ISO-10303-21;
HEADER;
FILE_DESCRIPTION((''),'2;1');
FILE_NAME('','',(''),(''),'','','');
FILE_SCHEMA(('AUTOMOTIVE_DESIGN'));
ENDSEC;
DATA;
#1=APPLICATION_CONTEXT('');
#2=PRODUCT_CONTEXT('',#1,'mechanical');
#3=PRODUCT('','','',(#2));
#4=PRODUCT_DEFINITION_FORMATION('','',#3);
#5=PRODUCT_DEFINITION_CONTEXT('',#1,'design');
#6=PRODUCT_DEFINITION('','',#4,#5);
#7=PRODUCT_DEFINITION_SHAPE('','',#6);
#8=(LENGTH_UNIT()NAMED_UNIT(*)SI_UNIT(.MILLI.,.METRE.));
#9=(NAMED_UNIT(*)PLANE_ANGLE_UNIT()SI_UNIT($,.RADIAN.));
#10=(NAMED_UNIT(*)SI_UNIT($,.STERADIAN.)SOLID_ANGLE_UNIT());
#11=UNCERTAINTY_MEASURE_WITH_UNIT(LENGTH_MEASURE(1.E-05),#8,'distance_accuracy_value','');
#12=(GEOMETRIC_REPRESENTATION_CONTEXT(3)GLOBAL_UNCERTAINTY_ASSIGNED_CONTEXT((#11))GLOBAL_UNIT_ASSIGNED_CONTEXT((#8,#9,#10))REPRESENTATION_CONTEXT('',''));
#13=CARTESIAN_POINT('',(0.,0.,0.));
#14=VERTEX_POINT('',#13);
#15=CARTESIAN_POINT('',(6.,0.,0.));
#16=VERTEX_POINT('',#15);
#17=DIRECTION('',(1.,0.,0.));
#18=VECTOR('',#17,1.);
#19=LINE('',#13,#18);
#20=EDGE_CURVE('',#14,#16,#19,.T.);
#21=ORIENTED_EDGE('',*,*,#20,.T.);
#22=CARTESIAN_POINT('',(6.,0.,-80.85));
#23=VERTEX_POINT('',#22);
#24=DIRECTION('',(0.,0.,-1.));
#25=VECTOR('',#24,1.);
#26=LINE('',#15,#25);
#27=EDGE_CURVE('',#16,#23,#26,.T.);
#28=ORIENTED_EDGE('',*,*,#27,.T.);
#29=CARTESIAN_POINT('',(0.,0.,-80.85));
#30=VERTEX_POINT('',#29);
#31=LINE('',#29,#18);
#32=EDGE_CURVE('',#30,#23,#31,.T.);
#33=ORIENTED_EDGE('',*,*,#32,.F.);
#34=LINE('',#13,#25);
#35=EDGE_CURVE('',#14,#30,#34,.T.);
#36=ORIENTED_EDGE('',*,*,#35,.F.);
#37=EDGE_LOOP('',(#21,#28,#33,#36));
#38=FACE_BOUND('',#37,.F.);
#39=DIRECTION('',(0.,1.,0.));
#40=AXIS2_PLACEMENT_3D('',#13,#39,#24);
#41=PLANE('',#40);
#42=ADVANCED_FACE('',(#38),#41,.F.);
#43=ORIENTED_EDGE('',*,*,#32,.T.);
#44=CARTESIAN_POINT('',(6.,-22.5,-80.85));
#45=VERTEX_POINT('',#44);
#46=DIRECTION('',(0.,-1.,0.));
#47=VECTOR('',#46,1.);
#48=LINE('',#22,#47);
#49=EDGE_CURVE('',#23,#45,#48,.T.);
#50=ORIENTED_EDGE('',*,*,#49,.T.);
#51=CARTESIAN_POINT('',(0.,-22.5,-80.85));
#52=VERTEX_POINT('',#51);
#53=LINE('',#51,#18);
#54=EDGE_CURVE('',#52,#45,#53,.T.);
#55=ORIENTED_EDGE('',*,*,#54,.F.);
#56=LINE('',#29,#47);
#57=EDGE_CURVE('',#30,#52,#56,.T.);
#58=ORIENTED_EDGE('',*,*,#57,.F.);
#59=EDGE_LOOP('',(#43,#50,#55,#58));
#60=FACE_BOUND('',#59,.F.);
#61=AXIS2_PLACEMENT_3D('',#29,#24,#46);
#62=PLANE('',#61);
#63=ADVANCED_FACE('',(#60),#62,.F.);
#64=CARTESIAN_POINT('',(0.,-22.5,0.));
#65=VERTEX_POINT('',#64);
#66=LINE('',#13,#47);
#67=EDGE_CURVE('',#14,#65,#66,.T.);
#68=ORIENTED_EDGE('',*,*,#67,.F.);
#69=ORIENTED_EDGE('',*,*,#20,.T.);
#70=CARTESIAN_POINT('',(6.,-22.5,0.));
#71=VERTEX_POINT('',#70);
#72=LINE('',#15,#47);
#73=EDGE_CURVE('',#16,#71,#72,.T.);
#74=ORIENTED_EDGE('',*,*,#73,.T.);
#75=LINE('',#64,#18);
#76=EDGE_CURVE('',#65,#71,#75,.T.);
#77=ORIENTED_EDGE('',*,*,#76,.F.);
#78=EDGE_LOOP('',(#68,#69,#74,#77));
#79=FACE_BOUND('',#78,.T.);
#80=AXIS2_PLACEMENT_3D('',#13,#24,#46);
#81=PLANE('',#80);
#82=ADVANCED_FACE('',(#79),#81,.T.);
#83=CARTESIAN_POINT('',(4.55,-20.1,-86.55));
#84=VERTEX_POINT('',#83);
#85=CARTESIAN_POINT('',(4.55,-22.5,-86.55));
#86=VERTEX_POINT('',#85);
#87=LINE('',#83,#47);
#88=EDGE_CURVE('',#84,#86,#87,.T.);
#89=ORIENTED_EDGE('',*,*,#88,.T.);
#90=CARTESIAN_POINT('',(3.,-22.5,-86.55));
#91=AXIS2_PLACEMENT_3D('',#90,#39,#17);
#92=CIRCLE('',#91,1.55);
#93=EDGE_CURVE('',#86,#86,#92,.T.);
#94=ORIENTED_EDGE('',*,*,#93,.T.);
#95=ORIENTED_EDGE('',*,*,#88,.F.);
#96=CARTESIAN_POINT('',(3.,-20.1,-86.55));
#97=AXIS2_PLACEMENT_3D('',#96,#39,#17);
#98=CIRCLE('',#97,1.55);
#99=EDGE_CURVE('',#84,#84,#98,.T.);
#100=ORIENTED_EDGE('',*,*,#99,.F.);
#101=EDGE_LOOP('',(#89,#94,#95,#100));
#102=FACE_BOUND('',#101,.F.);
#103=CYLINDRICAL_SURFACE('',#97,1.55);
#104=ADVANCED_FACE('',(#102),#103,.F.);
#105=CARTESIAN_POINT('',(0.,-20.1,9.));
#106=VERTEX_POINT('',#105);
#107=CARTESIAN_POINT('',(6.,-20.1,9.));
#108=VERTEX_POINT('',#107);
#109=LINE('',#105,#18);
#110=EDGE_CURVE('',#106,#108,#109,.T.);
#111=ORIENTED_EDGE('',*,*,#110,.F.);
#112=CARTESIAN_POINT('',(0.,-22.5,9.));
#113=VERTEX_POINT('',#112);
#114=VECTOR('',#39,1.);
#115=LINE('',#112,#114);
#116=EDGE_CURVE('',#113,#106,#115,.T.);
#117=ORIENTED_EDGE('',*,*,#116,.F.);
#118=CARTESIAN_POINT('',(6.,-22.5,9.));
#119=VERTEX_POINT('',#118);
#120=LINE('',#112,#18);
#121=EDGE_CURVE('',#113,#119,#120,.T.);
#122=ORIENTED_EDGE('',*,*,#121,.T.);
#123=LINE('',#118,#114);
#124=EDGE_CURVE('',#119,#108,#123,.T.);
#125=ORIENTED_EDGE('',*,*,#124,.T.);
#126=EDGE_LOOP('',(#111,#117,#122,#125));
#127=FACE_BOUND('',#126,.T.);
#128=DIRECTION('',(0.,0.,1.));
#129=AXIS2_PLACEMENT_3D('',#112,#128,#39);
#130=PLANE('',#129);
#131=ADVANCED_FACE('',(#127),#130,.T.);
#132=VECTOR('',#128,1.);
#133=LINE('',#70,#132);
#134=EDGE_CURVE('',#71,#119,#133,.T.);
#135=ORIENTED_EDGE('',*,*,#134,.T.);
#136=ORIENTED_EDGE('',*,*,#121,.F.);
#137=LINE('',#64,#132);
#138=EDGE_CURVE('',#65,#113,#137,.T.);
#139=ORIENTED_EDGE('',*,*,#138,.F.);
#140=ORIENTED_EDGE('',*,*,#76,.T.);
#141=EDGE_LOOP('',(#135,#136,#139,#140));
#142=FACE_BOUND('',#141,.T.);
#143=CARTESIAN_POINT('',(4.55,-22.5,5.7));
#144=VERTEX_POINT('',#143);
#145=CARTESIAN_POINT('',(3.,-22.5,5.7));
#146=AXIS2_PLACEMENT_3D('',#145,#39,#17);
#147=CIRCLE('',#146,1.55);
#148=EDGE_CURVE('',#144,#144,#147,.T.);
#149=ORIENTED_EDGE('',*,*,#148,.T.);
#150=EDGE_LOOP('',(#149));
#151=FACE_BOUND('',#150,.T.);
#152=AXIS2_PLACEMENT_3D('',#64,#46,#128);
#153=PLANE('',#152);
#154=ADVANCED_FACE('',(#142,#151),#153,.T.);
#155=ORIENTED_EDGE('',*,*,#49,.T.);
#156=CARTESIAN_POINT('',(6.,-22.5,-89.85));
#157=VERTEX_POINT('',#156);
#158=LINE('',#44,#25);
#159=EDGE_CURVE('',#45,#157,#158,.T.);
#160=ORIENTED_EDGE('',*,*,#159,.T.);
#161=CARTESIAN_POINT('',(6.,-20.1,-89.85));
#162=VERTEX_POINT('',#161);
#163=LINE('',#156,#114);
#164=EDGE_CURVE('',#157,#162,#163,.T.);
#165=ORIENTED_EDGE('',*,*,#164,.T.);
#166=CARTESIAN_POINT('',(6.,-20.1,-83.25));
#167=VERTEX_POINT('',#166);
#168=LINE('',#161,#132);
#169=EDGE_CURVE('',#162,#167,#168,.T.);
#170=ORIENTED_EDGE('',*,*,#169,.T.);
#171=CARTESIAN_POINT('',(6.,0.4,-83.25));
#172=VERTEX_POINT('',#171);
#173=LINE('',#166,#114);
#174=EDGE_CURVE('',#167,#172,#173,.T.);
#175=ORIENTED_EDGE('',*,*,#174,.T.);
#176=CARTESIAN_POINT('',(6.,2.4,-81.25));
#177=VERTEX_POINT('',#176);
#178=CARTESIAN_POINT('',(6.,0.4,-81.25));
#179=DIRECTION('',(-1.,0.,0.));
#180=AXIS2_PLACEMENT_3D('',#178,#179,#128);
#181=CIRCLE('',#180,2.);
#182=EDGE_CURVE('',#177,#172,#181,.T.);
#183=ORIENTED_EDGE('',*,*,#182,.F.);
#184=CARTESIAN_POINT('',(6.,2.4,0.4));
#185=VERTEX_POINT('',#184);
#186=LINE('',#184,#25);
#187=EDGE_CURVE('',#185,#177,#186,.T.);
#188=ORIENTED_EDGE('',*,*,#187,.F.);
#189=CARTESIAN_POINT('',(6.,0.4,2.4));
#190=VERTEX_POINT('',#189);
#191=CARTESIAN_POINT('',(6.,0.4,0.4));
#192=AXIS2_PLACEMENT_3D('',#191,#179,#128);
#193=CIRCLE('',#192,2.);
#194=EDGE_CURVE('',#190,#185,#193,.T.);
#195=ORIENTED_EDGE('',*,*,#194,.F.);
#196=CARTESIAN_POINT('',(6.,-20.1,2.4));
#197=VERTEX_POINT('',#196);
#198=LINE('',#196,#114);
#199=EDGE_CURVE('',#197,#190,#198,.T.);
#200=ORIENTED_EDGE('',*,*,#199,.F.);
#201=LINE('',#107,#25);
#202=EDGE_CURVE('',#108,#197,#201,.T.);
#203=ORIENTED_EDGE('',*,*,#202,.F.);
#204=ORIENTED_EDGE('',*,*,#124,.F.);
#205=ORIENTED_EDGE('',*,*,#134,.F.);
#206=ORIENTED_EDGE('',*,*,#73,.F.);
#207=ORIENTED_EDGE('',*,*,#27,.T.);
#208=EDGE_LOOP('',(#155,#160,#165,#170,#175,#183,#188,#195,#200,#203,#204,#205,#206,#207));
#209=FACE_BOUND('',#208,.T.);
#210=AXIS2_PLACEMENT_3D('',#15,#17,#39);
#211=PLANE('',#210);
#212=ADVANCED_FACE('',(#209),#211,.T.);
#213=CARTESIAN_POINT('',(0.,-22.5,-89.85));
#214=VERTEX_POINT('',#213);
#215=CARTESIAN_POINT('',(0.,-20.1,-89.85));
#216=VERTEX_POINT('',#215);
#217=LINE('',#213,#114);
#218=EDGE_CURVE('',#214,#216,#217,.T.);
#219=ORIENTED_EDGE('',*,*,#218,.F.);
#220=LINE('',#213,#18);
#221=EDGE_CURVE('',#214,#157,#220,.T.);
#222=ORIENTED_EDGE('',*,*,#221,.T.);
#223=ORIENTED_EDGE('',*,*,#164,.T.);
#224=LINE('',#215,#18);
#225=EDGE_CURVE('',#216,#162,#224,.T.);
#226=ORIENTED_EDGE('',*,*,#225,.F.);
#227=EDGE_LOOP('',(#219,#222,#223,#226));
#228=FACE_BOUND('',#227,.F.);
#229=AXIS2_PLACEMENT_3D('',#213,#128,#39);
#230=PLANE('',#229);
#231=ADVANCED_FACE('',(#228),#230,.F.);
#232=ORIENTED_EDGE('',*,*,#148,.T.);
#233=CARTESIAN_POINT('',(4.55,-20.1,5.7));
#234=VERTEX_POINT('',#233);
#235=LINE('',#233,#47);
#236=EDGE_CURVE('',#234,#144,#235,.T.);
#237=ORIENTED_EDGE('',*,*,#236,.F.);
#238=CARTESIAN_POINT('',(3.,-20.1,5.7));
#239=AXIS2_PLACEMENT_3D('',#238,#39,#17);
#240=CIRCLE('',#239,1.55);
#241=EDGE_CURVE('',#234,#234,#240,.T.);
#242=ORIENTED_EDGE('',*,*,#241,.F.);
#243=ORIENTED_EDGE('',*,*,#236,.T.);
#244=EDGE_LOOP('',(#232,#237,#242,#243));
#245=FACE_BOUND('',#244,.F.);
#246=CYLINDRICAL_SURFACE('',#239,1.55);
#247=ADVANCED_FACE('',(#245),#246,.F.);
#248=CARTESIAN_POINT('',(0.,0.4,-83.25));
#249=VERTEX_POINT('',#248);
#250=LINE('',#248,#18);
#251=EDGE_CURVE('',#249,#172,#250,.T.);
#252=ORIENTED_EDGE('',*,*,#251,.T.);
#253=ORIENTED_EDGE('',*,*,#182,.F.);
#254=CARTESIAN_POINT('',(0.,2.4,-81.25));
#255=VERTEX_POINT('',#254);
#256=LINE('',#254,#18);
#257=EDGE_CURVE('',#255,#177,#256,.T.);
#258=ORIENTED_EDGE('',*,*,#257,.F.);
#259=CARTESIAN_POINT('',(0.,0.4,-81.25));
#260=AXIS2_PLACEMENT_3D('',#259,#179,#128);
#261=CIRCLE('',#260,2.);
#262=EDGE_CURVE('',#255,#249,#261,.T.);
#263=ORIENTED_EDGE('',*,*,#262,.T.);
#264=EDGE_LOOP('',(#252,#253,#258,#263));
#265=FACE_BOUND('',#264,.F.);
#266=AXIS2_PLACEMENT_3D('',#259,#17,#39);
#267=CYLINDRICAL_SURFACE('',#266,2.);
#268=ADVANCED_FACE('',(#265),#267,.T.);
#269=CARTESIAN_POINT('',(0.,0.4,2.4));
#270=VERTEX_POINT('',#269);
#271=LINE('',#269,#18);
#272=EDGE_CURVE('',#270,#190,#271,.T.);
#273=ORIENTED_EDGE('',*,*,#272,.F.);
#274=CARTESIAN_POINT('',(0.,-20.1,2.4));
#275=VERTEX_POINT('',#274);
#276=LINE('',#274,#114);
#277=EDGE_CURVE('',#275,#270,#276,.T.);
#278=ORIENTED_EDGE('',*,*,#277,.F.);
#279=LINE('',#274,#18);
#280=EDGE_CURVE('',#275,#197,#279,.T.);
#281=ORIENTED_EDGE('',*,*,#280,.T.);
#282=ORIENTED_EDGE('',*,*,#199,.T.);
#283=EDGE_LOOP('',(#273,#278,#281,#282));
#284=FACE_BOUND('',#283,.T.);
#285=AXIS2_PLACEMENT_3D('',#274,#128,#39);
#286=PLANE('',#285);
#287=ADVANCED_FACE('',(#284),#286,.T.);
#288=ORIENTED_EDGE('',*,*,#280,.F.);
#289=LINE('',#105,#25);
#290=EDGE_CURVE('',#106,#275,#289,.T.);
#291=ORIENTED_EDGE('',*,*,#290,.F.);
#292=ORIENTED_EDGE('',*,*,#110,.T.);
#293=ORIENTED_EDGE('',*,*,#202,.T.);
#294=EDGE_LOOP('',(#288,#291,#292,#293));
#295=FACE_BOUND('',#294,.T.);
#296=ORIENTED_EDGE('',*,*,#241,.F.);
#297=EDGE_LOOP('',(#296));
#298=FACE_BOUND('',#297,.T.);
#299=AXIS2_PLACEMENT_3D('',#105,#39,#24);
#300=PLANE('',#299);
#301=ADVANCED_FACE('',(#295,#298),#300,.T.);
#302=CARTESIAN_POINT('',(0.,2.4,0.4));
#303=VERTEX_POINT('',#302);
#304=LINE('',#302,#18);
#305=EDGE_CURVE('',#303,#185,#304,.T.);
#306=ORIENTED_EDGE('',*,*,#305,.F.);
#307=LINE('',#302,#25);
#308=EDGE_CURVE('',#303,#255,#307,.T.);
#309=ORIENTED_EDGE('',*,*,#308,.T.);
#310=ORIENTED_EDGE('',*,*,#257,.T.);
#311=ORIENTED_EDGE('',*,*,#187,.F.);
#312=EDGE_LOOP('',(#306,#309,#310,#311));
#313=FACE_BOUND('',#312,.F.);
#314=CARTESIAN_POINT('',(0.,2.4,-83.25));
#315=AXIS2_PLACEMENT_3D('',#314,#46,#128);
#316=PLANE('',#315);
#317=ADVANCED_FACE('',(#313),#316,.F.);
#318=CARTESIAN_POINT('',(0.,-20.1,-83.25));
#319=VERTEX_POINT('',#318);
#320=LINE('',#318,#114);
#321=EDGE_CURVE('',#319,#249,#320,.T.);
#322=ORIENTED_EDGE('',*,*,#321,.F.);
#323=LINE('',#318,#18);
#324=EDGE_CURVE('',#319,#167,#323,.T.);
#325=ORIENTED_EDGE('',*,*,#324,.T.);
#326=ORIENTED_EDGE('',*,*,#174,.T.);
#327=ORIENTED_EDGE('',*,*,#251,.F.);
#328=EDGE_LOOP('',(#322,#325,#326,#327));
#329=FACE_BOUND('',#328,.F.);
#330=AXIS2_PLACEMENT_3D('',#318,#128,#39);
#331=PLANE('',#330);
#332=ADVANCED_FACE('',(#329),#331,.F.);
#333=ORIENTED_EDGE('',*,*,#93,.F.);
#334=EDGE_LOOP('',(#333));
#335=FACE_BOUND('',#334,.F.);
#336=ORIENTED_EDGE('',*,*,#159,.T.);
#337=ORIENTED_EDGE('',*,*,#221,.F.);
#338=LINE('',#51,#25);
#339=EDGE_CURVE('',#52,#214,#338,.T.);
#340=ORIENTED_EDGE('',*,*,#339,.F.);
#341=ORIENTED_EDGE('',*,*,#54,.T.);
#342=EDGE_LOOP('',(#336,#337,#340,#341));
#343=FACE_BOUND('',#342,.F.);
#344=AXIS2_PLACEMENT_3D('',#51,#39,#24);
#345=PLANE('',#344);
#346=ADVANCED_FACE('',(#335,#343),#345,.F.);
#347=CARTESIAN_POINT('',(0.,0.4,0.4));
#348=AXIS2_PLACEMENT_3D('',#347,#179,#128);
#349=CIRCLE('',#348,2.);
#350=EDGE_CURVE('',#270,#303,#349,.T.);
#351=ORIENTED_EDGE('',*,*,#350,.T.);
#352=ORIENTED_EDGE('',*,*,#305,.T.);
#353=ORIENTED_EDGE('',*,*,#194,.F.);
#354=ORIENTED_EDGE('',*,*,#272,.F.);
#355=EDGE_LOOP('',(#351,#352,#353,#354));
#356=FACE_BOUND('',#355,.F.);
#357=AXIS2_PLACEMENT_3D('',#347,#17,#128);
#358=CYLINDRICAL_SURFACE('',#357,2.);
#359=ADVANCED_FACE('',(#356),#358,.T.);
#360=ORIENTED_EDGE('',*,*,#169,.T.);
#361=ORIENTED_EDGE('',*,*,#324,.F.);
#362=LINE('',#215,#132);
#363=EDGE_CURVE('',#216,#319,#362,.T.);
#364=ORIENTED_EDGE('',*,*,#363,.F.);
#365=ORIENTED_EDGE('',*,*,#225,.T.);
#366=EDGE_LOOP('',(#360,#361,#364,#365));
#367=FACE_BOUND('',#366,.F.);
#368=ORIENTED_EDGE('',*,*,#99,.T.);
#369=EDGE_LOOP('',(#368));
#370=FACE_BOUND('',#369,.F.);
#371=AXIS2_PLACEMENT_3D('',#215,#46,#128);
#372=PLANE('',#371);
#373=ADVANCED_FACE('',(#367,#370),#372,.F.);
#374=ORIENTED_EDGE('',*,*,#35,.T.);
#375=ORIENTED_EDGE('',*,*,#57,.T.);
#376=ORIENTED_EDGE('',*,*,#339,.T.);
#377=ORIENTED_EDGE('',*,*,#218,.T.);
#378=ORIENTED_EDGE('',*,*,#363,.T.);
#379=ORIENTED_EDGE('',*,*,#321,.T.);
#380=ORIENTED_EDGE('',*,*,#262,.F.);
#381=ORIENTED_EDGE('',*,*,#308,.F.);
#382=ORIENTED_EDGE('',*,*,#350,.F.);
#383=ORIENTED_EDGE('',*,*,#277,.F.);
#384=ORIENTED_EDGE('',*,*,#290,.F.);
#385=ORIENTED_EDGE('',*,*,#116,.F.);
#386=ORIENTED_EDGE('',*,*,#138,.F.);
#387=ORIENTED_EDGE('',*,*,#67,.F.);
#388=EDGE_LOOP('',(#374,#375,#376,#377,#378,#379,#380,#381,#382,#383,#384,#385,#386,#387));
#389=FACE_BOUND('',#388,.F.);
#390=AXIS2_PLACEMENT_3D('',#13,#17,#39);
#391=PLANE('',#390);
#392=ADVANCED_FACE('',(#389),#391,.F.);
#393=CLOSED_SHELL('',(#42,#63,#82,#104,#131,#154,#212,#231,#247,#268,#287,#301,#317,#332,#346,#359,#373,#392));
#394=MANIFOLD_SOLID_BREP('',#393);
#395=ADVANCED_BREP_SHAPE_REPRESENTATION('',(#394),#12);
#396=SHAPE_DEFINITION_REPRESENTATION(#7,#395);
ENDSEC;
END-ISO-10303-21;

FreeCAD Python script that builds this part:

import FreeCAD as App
import Part
import Sketcher


def edges_at(feature, points):
    """Names of the edges that pass closest to the given points."""
    edges = feature.Shape.Edges
    near = lambda p: min(range(len(edges)), key=lambda i: edges[i].distToShape(Part.Vertex(*p))[0])
    return sorted({f"Edge{near(p) + 1}" for p in points})

doc = App.newDocument("Part")
body = doc.addObject("PartDesign::Body", "Body")

sketch1 = doc.addObject("Sketcher::SketchObject", "Sketch")
body.addObject(sketch1)
sketch1.AttachmentSupport = (doc.YZ_Plane, [""])
sketch1.MapMode = "FlatFace"
sketch1.addGeometry(Part.LineSegment(App.Vector(-22.5, 0, 0), App.Vector(0, 0, 0)), False)
sketch1.addGeometry(Part.LineSegment(App.Vector(0, 0, 0), App.Vector(0, -80.8, 0)), False)
sketch1.addGeometry(Part.LineSegment(App.Vector(0, -80.8, 0), App.Vector(-22.5, -80.8, 0)), False)
sketch1.addGeometry(Part.LineSegment(App.Vector(-22.5, -80.8, 0), App.Vector(-22.5, -89.8, 0)), False)
sketch1.addGeometry(Part.LineSegment(App.Vector(-22.5, -89.8, 0), App.Vector(-20.1, -89.8, 0)), False)
sketch1.addGeometry(Part.LineSegment(App.Vector(-20.1, -89.8, 0), App.Vector(-20.1, -83.2, 0)), False)
sketch1.addGeometry(Part.LineSegment(App.Vector(-20.1, -83.2, 0), App.Vector(2.4, -83.2, 0)), False)
sketch1.addGeometry(Part.LineSegment(App.Vector(2.4, -83.2, 0), App.Vector(2.4, 2.4, 0)), False)
sketch1.addGeometry(Part.LineSegment(App.Vector(2.4, 2.4, 0), App.Vector(-20.1, 2.4, 0)), False)
sketch1.addGeometry(Part.LineSegment(App.Vector(-20.1, 2.4, 0), App.Vector(-20.1, 9, 0)), False)
sketch1.addGeometry(Part.LineSegment(App.Vector(-20.1, 9, 0), App.Vector(-22.5, 9, 0)), False)
sketch1.addGeometry(Part.LineSegment(App.Vector(-22.5, 9, 0), App.Vector(-22.5, 0, 0)), False)
sketch1.addConstraint(Sketcher.Constraint("Coincident", 0, 2, 1, 1))
sketch1.addConstraint(Sketcher.Constraint("Coincident", 1, 2, 2, 1))
sketch1.addConstraint(Sketcher.Constraint("Coincident", 2, 2, 3, 1))
sketch1.addConstraint(Sketcher.Constraint("Coincident", 3, 2, 4, 1))
sketch1.addConstraint(Sketcher.Constraint("Coincident", 4, 2, 5, 1))
sketch1.addConstraint(Sketcher.Constraint("Coincident", 5, 2, 6, 1))
sketch1.addConstraint(Sketcher.Constraint("Coincident", 6, 2, 7, 1))
sketch1.addConstraint(Sketcher.Constraint("Coincident", 7, 2, 8, 1))
sketch1.addConstraint(Sketcher.Constraint("Coincident", 8, 2, 9, 1))
sketch1.addConstraint(Sketcher.Constraint("Coincident", 9, 2, 10, 1))
sketch1.addConstraint(Sketcher.Constraint("Coincident", 10, 2, 11, 1))
sketch1.addConstraint(Sketcher.Constraint("Coincident", 11, 2, 0, 1))
sketch1.addConstraint(Sketcher.Constraint("Horizontal", 0))
sketch1.addConstraint(Sketcher.Constraint("Vertical", 1))
sketch1.addConstraint(Sketcher.Constraint("Horizontal", 2))
sketch1.addConstraint(Sketcher.Constraint("Vertical", 3))
sketch1.addConstraint(Sketcher.Constraint("Horizontal", 4))
sketch1.addConstraint(Sketcher.Constraint("Vertical", 5))
sketch1.addConstraint(Sketcher.Constraint("Horizontal", 6))
sketch1.addConstraint(Sketcher.Constraint("Vertical", 7))
sketch1.addConstraint(Sketcher.Constraint("Horizontal", 8))
sketch1.addConstraint(Sketcher.Constraint("Vertical", 9))
sketch1.addConstraint(Sketcher.Constraint("Horizontal", 10))
sketch1.addConstraint(Sketcher.Constraint("Vertical", 11))
sketch1.addConstraint(Sketcher.Constraint("Coincident", 0, 2, -1, 1))
sketch1.addConstraint(Sketcher.Constraint("Vertical", 5, 2, 8, 2))
sketch1.addConstraint(Sketcher.Constraint("Vertical", 3, 2, 10, 2))
sketch1.addConstraint(Sketcher.Constraint("Equal", 2, 6))
sketch1.addConstraint(Sketcher.Constraint("Equal", 5, 9))
sketch1.addConstraint(Sketcher.Constraint("Equal", 3, 11))
sketch1.addConstraint(Sketcher.Constraint("DistanceY", 3, 2, 3, 1, 9.0))
sketch1.addConstraint(Sketcher.Constraint("DistanceX", 0, 1, 0, 2, 22.5))
sketch1.addConstraint(Sketcher.Constraint("DistanceX", 4, 1, 4, 2, 2.4))
sketch1.addConstraint(Sketcher.Constraint("DistanceY", 5, 1, 5, 2, 6.6))
sketch1.addConstraint(Sketcher.Constraint("DistanceY", 1, 2, 1, 1, 80.85))
pad1 = doc.addObject("PartDesign::Pad", "Pad")
body.addObject(pad1)
pad1.Profile = sketch1
pad1.Length = 6
doc.recompute()

fillet = doc.addObject("PartDesign::Fillet", "Fillet")
body.addObject(fillet)
fillet.Base = (pad1, edges_at(pad1, [(3, 2.4, 2.4)]))
fillet.Radius = 2
doc.recompute()

fillet2 = doc.addObject("PartDesign::Fillet", "Fillet001")
body.addObject(fillet2)
fillet2.Base = (fillet, edges_at(fillet, [(3, 2.4, -83.25)]))
fillet2.Radius = 2

sketch2 = doc.addObject("Sketcher::SketchObject", "Sketch001")
body.addObject(sketch2)
sketch2.AttachmentSupport = (doc.XZ_Plane, [""])
sketch2.MapMode = "FlatFace"
sketch2.AttachmentOffset = App.Placement(App.Vector(0, 0, 20.1), App.Rotation())
sketch2.addGeometry(Part.Circle(App.Vector(3, 5.7, 0), App.Vector(0, 0, 1), 1.6), False)
sketch2.addGeometry(Part.Circle(App.Vector(3, -86.5, 0), App.Vector(0, 0, 1), 1.6), False)
sketch2.addConstraint(Sketcher.Constraint("Equal", 0, 1))
sketch2.addConstraint(Sketcher.Constraint("Vertical", 0, 3, 1, 3))
sketch2.addConstraint(Sketcher.Constraint("Diameter", 0, 3.1))
sketch2.addConstraint(Sketcher.Constraint("DistanceX", -1, 1, 0, 3, 3.0))
sketch2.addConstraint(Sketcher.Constraint("DistanceY", -1, 1, 0, 3, 5.7))
sketch2.addConstraint(Sketcher.Constraint("DistanceY", 1, 3, -1, 1, 86.55))
pocket1 = doc.addObject("PartDesign::Pocket", "Pocket")
body.addObject(pocket1)
pocket1.Profile = sketch2
pocket1.Length = 10
pocket1.Reversed = True

doc.recompute()
